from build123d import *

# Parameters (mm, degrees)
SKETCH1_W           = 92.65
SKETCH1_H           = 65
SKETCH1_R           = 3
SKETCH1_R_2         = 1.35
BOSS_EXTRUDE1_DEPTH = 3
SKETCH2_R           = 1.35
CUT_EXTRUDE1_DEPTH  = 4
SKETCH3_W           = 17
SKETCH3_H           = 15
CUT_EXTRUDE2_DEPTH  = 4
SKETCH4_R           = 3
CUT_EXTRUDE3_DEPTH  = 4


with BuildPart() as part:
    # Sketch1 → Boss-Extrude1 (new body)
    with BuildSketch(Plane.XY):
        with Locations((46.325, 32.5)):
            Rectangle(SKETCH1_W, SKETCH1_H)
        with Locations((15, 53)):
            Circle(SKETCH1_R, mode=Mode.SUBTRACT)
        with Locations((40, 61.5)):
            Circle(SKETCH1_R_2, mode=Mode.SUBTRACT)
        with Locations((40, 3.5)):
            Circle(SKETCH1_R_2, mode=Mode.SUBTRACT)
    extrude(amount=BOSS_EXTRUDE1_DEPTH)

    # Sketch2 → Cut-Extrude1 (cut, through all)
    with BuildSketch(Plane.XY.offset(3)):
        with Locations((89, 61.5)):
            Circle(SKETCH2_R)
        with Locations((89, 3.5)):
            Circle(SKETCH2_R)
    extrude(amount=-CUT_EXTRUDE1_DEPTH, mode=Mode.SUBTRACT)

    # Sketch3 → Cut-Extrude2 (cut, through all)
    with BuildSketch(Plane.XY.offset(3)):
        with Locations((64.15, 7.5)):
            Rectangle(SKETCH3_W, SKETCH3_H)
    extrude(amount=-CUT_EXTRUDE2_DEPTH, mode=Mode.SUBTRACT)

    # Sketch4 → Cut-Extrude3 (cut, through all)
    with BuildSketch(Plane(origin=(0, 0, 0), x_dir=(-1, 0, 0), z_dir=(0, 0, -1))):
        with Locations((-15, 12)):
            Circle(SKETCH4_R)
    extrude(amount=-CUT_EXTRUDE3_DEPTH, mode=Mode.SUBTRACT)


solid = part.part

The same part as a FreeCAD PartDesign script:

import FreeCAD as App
import Part
import Sketcher
Q = App.Units.Quantity

doc = App.newDocument("Part")
body = doc.addObject("PartDesign::Body", "Body")

# Sketch on XY plane
sketch1 = body.newObject("Sketcher::SketchObject", "Sketch")
sketch1.AttachmentSupport = (doc.getObject("XY_Plane"), [""])
sketch1.MapMode = "FlatFace"
sketch1.addGeometry([
    Part.LineSegment(App.Vector(0, 65, 0), App.Vector(0, 0, 0)),  # 0
    Part.LineSegment(App.Vector(0, 0, 0), App.Vector(92.7, 0, 0)),  # 1
    Part.LineSegment(App.Vector(92.7, 0, 0), App.Vector(92.7, 65, 0)),  # 2
    Part.LineSegment(App.Vector(92.7, 65, 0), App.Vector(0, 65, 0)),  # 3
    Part.Circle(App.Vector(40, 3.5, 0), App.Vector(0, 0, 1), 1.4),  # 4
    Part.Circle(App.Vector(15, 53, 0), App.Vector(0, 0, 1), 3),  # 5
    Part.Circle(App.Vector(40, 61.5, 0), App.Vector(0, 0, 1), 1.4),  # 6
], False)
sketch1.addConstraint([
    Sketcher.Constraint("Coincident", 0, 2, 1, 1),
    Sketcher.Constraint("Coincident", 1, 2, 2, 1),
    Sketcher.Constraint("Coincident", 2, 2, 3, 1),
    Sketcher.Constraint("Coincident", 3, 2, 0, 1),
    Sketcher.Constraint("Vertical", 0),
    Sketcher.Constraint("Horizontal", 1),
    Sketcher.Constraint("Vertical", 2),
    Sketcher.Constraint("Horizontal", 3),
    Sketcher.Constraint("Coincident", 0, 2, -1, 1),
    Sketcher.Constraint("Equal", 4, 6),
    Sketcher.Constraint("Vertical", 4, 3, 6, 3),
    Sketcher.Constraint("Diameter", 5, Q("6 mm")),
    Sketcher.Constraint("Diameter", 4, Q("2.7 mm")),
    Sketcher.Constraint("DistanceY", 0, 2, 0, 1, Q("65 mm")),
    Sketcher.Constraint("DistanceX", -1, 1, 4, 3, Q("40 mm")),
    Sketcher.Constraint("DistanceX", -1, 1, 5, 3, Q("15 mm")),
    Sketcher.Constraint("DistanceY", -1, 1, 5, 3, Q("53 mm")),
    Sketcher.Constraint("DistanceY", 4, 3, 6, 3, Q("58 mm")),
    Sketcher.Constraint("DistanceX", 1, 1, 1, 2, Q("92.65 mm")),
    Sketcher.Constraint("DistanceY", -1, 1, 4, 3, Q("3.5 mm")),
])
pad1 = body.newObject("PartDesign::Pad", "Pad")
pad1.Profile = sketch1
pad1.Length = 3

# Sketch on XY plane
sketch2 = body.newObject("Sketcher::SketchObject", "Sketch001")
sketch2.AttachmentSupport = (doc.getObject("XY_Plane"), [""])
sketch2.MapMode = "FlatFace"
sketch2.AttachmentOffset = App.Placement(App.Vector(0, 0, 3), App.Rotation())
sketch2.addGeometry([
    Part.Circle(App.Vector(89, 61.5, 0), App.Vector(0, 0, 1), 1.4),
    Part.Circle(App.Vector(89, 3.5, 0), App.Vector(0, 0, 1), 1.4),
], False)
sketch2.addConstraint([
    Sketcher.Constraint("Equal", 0, 1),
    Sketcher.Constraint("Vertical", 0, 3, 1, 3),
    Sketcher.Constraint("Diameter", 0, Q("2.7 mm")),
    Sketcher.Constraint("DistanceX", -1, 1, 0, 3, Q("89 mm")),
    Sketcher.Constraint("DistanceY", 1, 3, 0, 3, Q("58 mm")),
    Sketcher.Constraint("DistanceY", -1, 1, 0, 3, Q("61.5 mm")),
])
pocket1 = body.newObject("PartDesign::Pocket", "Pocket")
pocket1.Profile = sketch2
pocket1.Type = "ThroughAll"

# Sketch on XY plane
sketch3 = body.newObject("Sketcher::SketchObject", "Sketch002")
sketch3.AttachmentSupport = (doc.getObject("XY_Plane"), [""])
sketch3.MapMode = "FlatFace"
sketch3.AttachmentOffset = App.Placement(App.Vector(0, 0, 3), App.Rotation())
sketch3.addGeometry([
    Part.LineSegment(App.Vector(56, 15, 0), App.Vector(56, 0, 0)),
    Part.LineSegment(App.Vector(56, 0, 0), App.Vector(73, 0, 0)),
    Part.LineSegment(App.Vector(73, 0, 0), App.Vector(73, 15, 0)),
    Part.LineSegment(App.Vector(73, 15, 0), App.Vector(56, 15, 0)),
], False)
sketch3.addConstraint([
    Sketcher.Constraint("Coincident", 0, 2, 1, 1),
    Sketcher.Constraint("Coincident", 1, 2, 2, 1),
    Sketcher.Constraint("Coincident", 2, 2, 3, 1),
    Sketcher.Constraint("Coincident", 3, 2, 0, 1),
    Sketcher.Constraint("Vertical", 0),
    Sketcher.Constraint("Horizontal", 1),
    Sketcher.Constraint("Vertical", 2),
    Sketcher.Constraint("Horizontal", 3),
    Sketcher.Constraint("PointOnObject", 0, 2, -1),
    Sketcher.Constraint("DistanceX", 1, 1, 1, 2, Q("17 mm")),
    Sketcher.Constraint("DistanceY", 0, 2, 0, 1, Q("15 mm")),
    Sketcher.Constraint("DistanceX", -1, 1, 0, 2, Q("55.65 mm")),
])
pocket2 = body.newObject("PartDesign::Pocket", "Pocket001")
pocket2.Profile = sketch3
pocket2.Type = "ThroughAll"

# Sketch on XY plane
sketch4 = body.newObject("Sketcher::SketchObject", "Sketch003")
sketch4.AttachmentSupport = (doc.getObject("XY_Plane"), [""])
sketch4.MapMode = "FlatFace"
sketch4.addGeometry(Part.Circle(App.Vector(15, 12, 0), App.Vector(0, 0, 1), 3), False)
sketch4.addConstraint([
    Sketcher.Constraint("Diameter", 0, Q("6 mm")),
    Sketcher.Constraint("DistanceX", -1, 1, 0, 3, Q("15 mm")),
    Sketcher.Constraint("DistanceY", -1, 1, 0, 3, Q("12 mm")),
])
pocket3 = body.newObject("PartDesign::Pocket", "Pocket002")
pocket3.Profile = sketch4
pocket3.Type = "ThroughAll"
pocket3.Reversed = True

doc.recompute()
